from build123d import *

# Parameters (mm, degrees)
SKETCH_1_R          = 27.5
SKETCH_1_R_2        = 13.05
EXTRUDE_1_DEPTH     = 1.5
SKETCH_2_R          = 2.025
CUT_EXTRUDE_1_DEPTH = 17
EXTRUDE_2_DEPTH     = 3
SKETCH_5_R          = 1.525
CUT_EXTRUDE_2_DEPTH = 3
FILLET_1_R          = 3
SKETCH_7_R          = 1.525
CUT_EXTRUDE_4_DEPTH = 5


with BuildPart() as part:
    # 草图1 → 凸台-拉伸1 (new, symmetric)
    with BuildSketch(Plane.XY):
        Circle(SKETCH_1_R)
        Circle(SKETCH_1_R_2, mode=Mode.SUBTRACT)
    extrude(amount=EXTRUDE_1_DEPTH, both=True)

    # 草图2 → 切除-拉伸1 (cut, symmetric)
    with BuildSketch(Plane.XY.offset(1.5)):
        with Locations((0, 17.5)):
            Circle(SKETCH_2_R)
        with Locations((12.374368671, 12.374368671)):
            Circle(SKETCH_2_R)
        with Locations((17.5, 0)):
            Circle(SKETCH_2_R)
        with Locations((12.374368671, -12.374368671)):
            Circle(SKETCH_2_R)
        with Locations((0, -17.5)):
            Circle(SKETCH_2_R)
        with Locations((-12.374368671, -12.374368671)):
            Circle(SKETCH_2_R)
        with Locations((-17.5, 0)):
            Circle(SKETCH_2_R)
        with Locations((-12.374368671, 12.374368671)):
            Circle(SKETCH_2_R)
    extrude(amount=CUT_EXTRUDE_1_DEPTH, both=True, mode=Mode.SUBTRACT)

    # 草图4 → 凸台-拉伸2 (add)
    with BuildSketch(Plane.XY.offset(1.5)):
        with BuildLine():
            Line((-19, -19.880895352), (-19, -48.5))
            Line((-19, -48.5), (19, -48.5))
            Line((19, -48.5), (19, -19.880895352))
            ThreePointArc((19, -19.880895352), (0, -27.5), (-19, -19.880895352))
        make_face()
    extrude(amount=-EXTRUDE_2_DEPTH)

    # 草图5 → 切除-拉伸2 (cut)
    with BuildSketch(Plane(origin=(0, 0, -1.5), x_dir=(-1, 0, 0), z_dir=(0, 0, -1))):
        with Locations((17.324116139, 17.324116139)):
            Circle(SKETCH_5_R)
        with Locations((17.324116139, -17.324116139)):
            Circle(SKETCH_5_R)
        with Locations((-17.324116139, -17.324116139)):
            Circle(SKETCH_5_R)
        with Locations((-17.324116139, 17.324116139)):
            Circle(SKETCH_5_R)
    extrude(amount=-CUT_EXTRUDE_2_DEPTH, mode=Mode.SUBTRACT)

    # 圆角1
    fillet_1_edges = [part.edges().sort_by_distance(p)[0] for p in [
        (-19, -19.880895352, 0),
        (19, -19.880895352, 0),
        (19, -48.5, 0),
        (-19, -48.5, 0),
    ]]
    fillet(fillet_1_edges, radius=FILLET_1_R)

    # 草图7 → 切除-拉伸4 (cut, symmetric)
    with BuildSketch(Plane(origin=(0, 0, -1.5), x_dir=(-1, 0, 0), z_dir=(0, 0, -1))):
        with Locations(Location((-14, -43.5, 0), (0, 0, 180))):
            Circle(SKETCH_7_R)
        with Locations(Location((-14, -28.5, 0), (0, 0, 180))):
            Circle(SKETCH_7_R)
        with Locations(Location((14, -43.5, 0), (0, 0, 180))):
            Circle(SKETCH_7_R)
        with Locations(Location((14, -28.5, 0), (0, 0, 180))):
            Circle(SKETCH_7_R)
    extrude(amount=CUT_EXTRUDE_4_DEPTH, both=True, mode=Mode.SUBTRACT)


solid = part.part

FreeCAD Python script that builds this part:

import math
import FreeCAD as App
import Part
import Sketcher
from FreeCAD import Vector
Q = App.Units.Quantity


def edges_at(feature, points):
    """Names of the edges that pass closest to the given points."""
    edges = feature.Shape.Edges
    near = lambda p: min(range(len(edges)), key=lambda i: edges[i].distToShape(Part.Vertex(*p))[0])
    return sorted({f"Edge{near(p) + 1}" for p in points})

doc = App.newDocument("Part")
body = doc.addObject("PartDesign::Body", "Body")

# Sketch on XY plane
sketch1 = doc.addObject("Sketcher::SketchObject", "Sketch")
body.addObject(sketch1)
sketch1.AttachmentSupport = (doc.XY_Plane, [""])
sketch1.MapMode = "FlatFace"
sketch1.addGeometry([
    Part.Circle(Vector(0, 0, 0), Vector(0, 0, 1), 28),
    Part.Circle(Vector(0, 0, 0), Vector(0, 0, 1), 13),
], False)
sketch1.addConstraint([
    Sketcher.Constraint("Coincident", 0, 3, -1, 1),
    Sketcher.Constraint("Coincident", 1, 3, -1, 1),
    Sketcher.Constraint("Diameter", 0, Q("55 mm")),
    Sketcher.Constraint("Diameter", 1, Q("26.1 mm")),
])
pad1 = doc.addObject("PartDesign::Pad", "Pad")
body.addObject(pad1)
pad1.Profile = sketch1
pad1.Length = 3
pad1.Midplane = True

# Sketch on XY plane
sketch2 = doc.addObject("Sketcher::SketchObject", "Sketch001")
body.addObject(sketch2)
sketch2.AttachmentSupport = (doc.XY_Plane, [""])
sketch2.MapMode = "FlatFace"
sketch2.AttachmentOffset = App.Placement(Vector(0, 0, 1.5), App.Rotation())
sketch2.addGeometry([
    Part.Circle(Vector(0, 17.5, 0), Vector(0, 0, 1), 2),  # 0
    Part.Circle(Vector(12.4, 12.4, 0), Vector(0, 0, 1), 2),  # 1
    Part.Circle(Vector(17.5, 0, 0), Vector(0, 0, 1), 2),  # 2
    Part.Circle(Vector(12.4, -12.4, 0), Vector(0, 0, 1), 2),  # 3
    Part.Circle(Vector(0, -17.5, 0), Vector(0, 0, 1), 2),  # 4
    Part.Circle(Vector(-12.4, -12.4, 0), Vector(0, 0, 1), 2),  # 5
    Part.Circle(Vector(-17.5, 0, 0), Vector(0, 0, 1), 2),  # 6
    Part.Circle(Vector(-12.4, 12.4, 0), Vector(0, 0, 1), 2),  # 7
], False)
sketch2.addConstraint([
    Sketcher.Constraint("Equal", 0, 1),
    Sketcher.Constraint("Equal", 1, 2),
    Sketcher.Constraint("Equal", 2, 3),
    Sketcher.Constraint("Equal", 3, 4),
    Sketcher.Constraint("Equal", 4, 5),
    Sketcher.Constraint("Equal", 5, 6),
    Sketcher.Constraint("Equal", 6, 7),
    Sketcher.Constraint("Symmetric", 0, 3, 4, 3, -1, 1),
    Sketcher.Constraint("Symmetric", 1, 3, 5, 3, -1, 1),
    Sketcher.Constraint("Symmetric", 2, 3, 6, 3, -1, 1),
    Sketcher.Constraint("Symmetric", 3, 3, 7, 3, -1, 1),
    Sketcher.Constraint("Symmetric", 3, 3, 5, 3, -2),
    Sketcher.Constraint("PointOnObject", 0, 3, -2),
    Sketcher.Constraint("PointOnObject", 2, 3, -1),
    Sketcher.Constraint("Diameter", 0, Q("4.05 mm")),
    Sketcher.Constraint("DistanceY", 4, 3, 0, 3, Q("35 mm")),
    Sketcher.Constraint("DistanceX", -1, 1, 2, 3, Q("17.5 mm")),
    Sketcher.Constraint("DistanceX", -1, 1, 1, 3, Q("12.374369 mm")),
    Sketcher.Constraint("DistanceY", -1, 1, 1, 3, Q("12.374369 mm")),
])
pocket1 = doc.addObject("PartDesign::Pocket", "Pocket")
body.addObject(pocket1)
pocket1.Profile = sketch2
pocket1.Length = 34
pocket1.Midplane = True

# Sketch on XY plane
sketch3 = doc.addObject("Sketcher::SketchObject", "Sketch002")
body.addObject(sketch3)
sketch3.AttachmentSupport = (doc.XY_Plane, [""])
sketch3.MapMode = "FlatFace"
sketch3.AttachmentOffset = App.Placement(Vector(0, 0, 1.5), App.Rotation())
sketch3.addGeometry([
    Part.LineSegment(Vector(-19, -20, 0), Vector(-19, -48, 0)),
    Part.LineSegment(Vector(-19, -48, 0), Vector(19, -48, 0)),
    Part.LineSegment(Vector(19, -48, 0), Vector(19, -20, 0)),
    Part.ArcOfCircle(Part.Circle(Vector(0, 0, 0), Vector(0, 0, 1), 28), math.radians(-134), math.radians(-46)),
], False)
sketch3.addConstraint([
    Sketcher.Constraint("Coincident", 0, 2, 1, 1),
    Sketcher.Constraint("Coincident", 1, 2, 2, 1),
    Sketcher.Constraint("Coincident", 2, 2, 3, 2),
    Sketcher.Constraint("Coincident", 3, 1, 0, 1),
    Sketcher.Constraint("Vertical", 0),
    Sketcher.Constraint("Horizontal", 1),
    Sketcher.Constraint("Vertical", 2),
    Sketcher.Constraint("Coincident", 3, 3, -1, 1),
    Sketcher.Constraint("Horizontal", 2, 2, 3, 1),
    Sketcher.Constraint("Radius", 3, Q("27.5 mm")),
    Sketcher.Constraint("DistanceX", 1, 1, 1, 2, Q("38 mm")),
    Sketcher.Constraint("DistanceY", 0, 2, -1, 1, Q("48.5 mm")),
])
pad2 = doc.addObject("PartDesign::Pad", "Pad001")
body.addObject(pad2)
pad2.Profile = sketch3
pad2.Length = 3
pad2.Reversed = True

# Sketch on XY plane
sketch4 = doc.addObject("Sketcher::SketchObject", "Sketch003")
body.addObject(sketch4)
sketch4.AttachmentSupport = (doc.XY_Plane, [""])
sketch4.MapMode = "FlatFace"
sketch4.AttachmentOffset = App.Placement(Vector(0, 0, -1.5), App.Rotation())
sketch4.addGeometry([
    Part.Circle(Vector(-17.3, 17.3, 0), Vector(0, 0, 1), 1.5),
    Part.Circle(Vector(-17.3, -17.3, 0), Vector(0, 0, 1), 1.5),
    Part.Circle(Vector(17.3, -17.3, 0), Vector(0, 0, 1), 1.5),
    Part.Circle(Vector(17.3, 17.3, 0), Vector(0, 0, 1), 1.5),
], False)
sketch4.addConstraint([
    Sketcher.Constraint("Equal", 0, 1),
    Sketcher.Constraint("Equal", 1, 2),
    Sketcher.Constraint("Equal", 2, 3),
    Sketcher.Constraint("Symmetric", 0, 3, 2, 3, -1, 1),
    Sketcher.Constraint("Symmetric", 1, 3, 3, 3, -1, 1),
    Sketcher.Constraint("Symmetric", 1, 3, 2, 3, -2),
    Sketcher.Constraint("Diameter", 0, Q("3.05 mm")),
    Sketcher.Constraint("DistanceX", 0, 3, -1, 1, Q("17.324116 mm")),
    Sketcher.Constraint("DistanceY", -1, 1, 0, 3, Q("17.324116 mm")),
])
pocket2 = doc.addObject("PartDesign::Pocket", "Pocket001")
body.addObject(pocket2)
pocket2.Profile = sketch4
pocket2.Length = 3
pocket2.Reversed = True
doc.recompute()

fillet = doc.addObject("PartDesign::Fillet", "Fillet")
body.addObject(fillet)
fillet.Base = (pocket2, edges_at(pocket2, [
    (-19, -19.881, 0),
    (19, -19.881, 0),
    (19, -48.5, 0),
    (-19, -48.5, 0),
]))
fillet.Radius = 3

# Sketch on XY plane
sketch5 = doc.addObject("Sketcher::SketchObject", "Sketch004")
body.addObject(sketch5)
sketch5.AttachmentSupport = (doc.XY_Plane, [""])
sketch5.MapMode = "FlatFace"
sketch5.AttachmentOffset = App.Placement(Vector(0, 0, -1.5), App.Rotation())
sketch5.addGeometry([
    Part.Circle(Vector(14, -43.5, 0), Vector(0, 0, 1), 1.5),
    Part.Circle(Vector(14, -28.5, 0), Vector(0, 0, 1), 1.5),
    Part.Circle(Vector(-14, -43.5, 0), Vector(0, 0, 1), 1.5),
    Part.Circle(Vector(-14, -28.5, 0), Vector(0, 0, 1), 1.5),
], False)
sketch5.addConstraint([
    Sketcher.Constraint("Equal", 0, 1),
    Sketcher.Constraint("Equal", 1, 2),
    Sketcher.Constraint("Equal", 2, 3),
    Sketcher.Constraint("Symmetric", 0, 3, 2, 3, -2),
    Sketcher.Constraint("Symmetric", 1, 3, 3, 3, -2),
    Sketcher.Constraint("Vertical", 0, 3, 1, 3),
    Sketcher.Constraint("Diameter", 0, Q("3.05 mm")),
    Sketcher.Constraint("DistanceX", -1, 1, 0, 3, Q("14 mm")),
    Sketcher.Constraint("DistanceY", 0, 3, 1, 3, Q("15 mm")),
    Sketcher.Constraint("DistanceY", 0, 3, -1, 1, Q("43.5 mm")),
])
pocket3 = doc.addObject("PartDesign::Pocket", "Pocket002")
body.addObject(pocket3)
pocket3.Profile = sketch5
pocket3.Length = 10
pocket3.Midplane = True

doc.recompute()
